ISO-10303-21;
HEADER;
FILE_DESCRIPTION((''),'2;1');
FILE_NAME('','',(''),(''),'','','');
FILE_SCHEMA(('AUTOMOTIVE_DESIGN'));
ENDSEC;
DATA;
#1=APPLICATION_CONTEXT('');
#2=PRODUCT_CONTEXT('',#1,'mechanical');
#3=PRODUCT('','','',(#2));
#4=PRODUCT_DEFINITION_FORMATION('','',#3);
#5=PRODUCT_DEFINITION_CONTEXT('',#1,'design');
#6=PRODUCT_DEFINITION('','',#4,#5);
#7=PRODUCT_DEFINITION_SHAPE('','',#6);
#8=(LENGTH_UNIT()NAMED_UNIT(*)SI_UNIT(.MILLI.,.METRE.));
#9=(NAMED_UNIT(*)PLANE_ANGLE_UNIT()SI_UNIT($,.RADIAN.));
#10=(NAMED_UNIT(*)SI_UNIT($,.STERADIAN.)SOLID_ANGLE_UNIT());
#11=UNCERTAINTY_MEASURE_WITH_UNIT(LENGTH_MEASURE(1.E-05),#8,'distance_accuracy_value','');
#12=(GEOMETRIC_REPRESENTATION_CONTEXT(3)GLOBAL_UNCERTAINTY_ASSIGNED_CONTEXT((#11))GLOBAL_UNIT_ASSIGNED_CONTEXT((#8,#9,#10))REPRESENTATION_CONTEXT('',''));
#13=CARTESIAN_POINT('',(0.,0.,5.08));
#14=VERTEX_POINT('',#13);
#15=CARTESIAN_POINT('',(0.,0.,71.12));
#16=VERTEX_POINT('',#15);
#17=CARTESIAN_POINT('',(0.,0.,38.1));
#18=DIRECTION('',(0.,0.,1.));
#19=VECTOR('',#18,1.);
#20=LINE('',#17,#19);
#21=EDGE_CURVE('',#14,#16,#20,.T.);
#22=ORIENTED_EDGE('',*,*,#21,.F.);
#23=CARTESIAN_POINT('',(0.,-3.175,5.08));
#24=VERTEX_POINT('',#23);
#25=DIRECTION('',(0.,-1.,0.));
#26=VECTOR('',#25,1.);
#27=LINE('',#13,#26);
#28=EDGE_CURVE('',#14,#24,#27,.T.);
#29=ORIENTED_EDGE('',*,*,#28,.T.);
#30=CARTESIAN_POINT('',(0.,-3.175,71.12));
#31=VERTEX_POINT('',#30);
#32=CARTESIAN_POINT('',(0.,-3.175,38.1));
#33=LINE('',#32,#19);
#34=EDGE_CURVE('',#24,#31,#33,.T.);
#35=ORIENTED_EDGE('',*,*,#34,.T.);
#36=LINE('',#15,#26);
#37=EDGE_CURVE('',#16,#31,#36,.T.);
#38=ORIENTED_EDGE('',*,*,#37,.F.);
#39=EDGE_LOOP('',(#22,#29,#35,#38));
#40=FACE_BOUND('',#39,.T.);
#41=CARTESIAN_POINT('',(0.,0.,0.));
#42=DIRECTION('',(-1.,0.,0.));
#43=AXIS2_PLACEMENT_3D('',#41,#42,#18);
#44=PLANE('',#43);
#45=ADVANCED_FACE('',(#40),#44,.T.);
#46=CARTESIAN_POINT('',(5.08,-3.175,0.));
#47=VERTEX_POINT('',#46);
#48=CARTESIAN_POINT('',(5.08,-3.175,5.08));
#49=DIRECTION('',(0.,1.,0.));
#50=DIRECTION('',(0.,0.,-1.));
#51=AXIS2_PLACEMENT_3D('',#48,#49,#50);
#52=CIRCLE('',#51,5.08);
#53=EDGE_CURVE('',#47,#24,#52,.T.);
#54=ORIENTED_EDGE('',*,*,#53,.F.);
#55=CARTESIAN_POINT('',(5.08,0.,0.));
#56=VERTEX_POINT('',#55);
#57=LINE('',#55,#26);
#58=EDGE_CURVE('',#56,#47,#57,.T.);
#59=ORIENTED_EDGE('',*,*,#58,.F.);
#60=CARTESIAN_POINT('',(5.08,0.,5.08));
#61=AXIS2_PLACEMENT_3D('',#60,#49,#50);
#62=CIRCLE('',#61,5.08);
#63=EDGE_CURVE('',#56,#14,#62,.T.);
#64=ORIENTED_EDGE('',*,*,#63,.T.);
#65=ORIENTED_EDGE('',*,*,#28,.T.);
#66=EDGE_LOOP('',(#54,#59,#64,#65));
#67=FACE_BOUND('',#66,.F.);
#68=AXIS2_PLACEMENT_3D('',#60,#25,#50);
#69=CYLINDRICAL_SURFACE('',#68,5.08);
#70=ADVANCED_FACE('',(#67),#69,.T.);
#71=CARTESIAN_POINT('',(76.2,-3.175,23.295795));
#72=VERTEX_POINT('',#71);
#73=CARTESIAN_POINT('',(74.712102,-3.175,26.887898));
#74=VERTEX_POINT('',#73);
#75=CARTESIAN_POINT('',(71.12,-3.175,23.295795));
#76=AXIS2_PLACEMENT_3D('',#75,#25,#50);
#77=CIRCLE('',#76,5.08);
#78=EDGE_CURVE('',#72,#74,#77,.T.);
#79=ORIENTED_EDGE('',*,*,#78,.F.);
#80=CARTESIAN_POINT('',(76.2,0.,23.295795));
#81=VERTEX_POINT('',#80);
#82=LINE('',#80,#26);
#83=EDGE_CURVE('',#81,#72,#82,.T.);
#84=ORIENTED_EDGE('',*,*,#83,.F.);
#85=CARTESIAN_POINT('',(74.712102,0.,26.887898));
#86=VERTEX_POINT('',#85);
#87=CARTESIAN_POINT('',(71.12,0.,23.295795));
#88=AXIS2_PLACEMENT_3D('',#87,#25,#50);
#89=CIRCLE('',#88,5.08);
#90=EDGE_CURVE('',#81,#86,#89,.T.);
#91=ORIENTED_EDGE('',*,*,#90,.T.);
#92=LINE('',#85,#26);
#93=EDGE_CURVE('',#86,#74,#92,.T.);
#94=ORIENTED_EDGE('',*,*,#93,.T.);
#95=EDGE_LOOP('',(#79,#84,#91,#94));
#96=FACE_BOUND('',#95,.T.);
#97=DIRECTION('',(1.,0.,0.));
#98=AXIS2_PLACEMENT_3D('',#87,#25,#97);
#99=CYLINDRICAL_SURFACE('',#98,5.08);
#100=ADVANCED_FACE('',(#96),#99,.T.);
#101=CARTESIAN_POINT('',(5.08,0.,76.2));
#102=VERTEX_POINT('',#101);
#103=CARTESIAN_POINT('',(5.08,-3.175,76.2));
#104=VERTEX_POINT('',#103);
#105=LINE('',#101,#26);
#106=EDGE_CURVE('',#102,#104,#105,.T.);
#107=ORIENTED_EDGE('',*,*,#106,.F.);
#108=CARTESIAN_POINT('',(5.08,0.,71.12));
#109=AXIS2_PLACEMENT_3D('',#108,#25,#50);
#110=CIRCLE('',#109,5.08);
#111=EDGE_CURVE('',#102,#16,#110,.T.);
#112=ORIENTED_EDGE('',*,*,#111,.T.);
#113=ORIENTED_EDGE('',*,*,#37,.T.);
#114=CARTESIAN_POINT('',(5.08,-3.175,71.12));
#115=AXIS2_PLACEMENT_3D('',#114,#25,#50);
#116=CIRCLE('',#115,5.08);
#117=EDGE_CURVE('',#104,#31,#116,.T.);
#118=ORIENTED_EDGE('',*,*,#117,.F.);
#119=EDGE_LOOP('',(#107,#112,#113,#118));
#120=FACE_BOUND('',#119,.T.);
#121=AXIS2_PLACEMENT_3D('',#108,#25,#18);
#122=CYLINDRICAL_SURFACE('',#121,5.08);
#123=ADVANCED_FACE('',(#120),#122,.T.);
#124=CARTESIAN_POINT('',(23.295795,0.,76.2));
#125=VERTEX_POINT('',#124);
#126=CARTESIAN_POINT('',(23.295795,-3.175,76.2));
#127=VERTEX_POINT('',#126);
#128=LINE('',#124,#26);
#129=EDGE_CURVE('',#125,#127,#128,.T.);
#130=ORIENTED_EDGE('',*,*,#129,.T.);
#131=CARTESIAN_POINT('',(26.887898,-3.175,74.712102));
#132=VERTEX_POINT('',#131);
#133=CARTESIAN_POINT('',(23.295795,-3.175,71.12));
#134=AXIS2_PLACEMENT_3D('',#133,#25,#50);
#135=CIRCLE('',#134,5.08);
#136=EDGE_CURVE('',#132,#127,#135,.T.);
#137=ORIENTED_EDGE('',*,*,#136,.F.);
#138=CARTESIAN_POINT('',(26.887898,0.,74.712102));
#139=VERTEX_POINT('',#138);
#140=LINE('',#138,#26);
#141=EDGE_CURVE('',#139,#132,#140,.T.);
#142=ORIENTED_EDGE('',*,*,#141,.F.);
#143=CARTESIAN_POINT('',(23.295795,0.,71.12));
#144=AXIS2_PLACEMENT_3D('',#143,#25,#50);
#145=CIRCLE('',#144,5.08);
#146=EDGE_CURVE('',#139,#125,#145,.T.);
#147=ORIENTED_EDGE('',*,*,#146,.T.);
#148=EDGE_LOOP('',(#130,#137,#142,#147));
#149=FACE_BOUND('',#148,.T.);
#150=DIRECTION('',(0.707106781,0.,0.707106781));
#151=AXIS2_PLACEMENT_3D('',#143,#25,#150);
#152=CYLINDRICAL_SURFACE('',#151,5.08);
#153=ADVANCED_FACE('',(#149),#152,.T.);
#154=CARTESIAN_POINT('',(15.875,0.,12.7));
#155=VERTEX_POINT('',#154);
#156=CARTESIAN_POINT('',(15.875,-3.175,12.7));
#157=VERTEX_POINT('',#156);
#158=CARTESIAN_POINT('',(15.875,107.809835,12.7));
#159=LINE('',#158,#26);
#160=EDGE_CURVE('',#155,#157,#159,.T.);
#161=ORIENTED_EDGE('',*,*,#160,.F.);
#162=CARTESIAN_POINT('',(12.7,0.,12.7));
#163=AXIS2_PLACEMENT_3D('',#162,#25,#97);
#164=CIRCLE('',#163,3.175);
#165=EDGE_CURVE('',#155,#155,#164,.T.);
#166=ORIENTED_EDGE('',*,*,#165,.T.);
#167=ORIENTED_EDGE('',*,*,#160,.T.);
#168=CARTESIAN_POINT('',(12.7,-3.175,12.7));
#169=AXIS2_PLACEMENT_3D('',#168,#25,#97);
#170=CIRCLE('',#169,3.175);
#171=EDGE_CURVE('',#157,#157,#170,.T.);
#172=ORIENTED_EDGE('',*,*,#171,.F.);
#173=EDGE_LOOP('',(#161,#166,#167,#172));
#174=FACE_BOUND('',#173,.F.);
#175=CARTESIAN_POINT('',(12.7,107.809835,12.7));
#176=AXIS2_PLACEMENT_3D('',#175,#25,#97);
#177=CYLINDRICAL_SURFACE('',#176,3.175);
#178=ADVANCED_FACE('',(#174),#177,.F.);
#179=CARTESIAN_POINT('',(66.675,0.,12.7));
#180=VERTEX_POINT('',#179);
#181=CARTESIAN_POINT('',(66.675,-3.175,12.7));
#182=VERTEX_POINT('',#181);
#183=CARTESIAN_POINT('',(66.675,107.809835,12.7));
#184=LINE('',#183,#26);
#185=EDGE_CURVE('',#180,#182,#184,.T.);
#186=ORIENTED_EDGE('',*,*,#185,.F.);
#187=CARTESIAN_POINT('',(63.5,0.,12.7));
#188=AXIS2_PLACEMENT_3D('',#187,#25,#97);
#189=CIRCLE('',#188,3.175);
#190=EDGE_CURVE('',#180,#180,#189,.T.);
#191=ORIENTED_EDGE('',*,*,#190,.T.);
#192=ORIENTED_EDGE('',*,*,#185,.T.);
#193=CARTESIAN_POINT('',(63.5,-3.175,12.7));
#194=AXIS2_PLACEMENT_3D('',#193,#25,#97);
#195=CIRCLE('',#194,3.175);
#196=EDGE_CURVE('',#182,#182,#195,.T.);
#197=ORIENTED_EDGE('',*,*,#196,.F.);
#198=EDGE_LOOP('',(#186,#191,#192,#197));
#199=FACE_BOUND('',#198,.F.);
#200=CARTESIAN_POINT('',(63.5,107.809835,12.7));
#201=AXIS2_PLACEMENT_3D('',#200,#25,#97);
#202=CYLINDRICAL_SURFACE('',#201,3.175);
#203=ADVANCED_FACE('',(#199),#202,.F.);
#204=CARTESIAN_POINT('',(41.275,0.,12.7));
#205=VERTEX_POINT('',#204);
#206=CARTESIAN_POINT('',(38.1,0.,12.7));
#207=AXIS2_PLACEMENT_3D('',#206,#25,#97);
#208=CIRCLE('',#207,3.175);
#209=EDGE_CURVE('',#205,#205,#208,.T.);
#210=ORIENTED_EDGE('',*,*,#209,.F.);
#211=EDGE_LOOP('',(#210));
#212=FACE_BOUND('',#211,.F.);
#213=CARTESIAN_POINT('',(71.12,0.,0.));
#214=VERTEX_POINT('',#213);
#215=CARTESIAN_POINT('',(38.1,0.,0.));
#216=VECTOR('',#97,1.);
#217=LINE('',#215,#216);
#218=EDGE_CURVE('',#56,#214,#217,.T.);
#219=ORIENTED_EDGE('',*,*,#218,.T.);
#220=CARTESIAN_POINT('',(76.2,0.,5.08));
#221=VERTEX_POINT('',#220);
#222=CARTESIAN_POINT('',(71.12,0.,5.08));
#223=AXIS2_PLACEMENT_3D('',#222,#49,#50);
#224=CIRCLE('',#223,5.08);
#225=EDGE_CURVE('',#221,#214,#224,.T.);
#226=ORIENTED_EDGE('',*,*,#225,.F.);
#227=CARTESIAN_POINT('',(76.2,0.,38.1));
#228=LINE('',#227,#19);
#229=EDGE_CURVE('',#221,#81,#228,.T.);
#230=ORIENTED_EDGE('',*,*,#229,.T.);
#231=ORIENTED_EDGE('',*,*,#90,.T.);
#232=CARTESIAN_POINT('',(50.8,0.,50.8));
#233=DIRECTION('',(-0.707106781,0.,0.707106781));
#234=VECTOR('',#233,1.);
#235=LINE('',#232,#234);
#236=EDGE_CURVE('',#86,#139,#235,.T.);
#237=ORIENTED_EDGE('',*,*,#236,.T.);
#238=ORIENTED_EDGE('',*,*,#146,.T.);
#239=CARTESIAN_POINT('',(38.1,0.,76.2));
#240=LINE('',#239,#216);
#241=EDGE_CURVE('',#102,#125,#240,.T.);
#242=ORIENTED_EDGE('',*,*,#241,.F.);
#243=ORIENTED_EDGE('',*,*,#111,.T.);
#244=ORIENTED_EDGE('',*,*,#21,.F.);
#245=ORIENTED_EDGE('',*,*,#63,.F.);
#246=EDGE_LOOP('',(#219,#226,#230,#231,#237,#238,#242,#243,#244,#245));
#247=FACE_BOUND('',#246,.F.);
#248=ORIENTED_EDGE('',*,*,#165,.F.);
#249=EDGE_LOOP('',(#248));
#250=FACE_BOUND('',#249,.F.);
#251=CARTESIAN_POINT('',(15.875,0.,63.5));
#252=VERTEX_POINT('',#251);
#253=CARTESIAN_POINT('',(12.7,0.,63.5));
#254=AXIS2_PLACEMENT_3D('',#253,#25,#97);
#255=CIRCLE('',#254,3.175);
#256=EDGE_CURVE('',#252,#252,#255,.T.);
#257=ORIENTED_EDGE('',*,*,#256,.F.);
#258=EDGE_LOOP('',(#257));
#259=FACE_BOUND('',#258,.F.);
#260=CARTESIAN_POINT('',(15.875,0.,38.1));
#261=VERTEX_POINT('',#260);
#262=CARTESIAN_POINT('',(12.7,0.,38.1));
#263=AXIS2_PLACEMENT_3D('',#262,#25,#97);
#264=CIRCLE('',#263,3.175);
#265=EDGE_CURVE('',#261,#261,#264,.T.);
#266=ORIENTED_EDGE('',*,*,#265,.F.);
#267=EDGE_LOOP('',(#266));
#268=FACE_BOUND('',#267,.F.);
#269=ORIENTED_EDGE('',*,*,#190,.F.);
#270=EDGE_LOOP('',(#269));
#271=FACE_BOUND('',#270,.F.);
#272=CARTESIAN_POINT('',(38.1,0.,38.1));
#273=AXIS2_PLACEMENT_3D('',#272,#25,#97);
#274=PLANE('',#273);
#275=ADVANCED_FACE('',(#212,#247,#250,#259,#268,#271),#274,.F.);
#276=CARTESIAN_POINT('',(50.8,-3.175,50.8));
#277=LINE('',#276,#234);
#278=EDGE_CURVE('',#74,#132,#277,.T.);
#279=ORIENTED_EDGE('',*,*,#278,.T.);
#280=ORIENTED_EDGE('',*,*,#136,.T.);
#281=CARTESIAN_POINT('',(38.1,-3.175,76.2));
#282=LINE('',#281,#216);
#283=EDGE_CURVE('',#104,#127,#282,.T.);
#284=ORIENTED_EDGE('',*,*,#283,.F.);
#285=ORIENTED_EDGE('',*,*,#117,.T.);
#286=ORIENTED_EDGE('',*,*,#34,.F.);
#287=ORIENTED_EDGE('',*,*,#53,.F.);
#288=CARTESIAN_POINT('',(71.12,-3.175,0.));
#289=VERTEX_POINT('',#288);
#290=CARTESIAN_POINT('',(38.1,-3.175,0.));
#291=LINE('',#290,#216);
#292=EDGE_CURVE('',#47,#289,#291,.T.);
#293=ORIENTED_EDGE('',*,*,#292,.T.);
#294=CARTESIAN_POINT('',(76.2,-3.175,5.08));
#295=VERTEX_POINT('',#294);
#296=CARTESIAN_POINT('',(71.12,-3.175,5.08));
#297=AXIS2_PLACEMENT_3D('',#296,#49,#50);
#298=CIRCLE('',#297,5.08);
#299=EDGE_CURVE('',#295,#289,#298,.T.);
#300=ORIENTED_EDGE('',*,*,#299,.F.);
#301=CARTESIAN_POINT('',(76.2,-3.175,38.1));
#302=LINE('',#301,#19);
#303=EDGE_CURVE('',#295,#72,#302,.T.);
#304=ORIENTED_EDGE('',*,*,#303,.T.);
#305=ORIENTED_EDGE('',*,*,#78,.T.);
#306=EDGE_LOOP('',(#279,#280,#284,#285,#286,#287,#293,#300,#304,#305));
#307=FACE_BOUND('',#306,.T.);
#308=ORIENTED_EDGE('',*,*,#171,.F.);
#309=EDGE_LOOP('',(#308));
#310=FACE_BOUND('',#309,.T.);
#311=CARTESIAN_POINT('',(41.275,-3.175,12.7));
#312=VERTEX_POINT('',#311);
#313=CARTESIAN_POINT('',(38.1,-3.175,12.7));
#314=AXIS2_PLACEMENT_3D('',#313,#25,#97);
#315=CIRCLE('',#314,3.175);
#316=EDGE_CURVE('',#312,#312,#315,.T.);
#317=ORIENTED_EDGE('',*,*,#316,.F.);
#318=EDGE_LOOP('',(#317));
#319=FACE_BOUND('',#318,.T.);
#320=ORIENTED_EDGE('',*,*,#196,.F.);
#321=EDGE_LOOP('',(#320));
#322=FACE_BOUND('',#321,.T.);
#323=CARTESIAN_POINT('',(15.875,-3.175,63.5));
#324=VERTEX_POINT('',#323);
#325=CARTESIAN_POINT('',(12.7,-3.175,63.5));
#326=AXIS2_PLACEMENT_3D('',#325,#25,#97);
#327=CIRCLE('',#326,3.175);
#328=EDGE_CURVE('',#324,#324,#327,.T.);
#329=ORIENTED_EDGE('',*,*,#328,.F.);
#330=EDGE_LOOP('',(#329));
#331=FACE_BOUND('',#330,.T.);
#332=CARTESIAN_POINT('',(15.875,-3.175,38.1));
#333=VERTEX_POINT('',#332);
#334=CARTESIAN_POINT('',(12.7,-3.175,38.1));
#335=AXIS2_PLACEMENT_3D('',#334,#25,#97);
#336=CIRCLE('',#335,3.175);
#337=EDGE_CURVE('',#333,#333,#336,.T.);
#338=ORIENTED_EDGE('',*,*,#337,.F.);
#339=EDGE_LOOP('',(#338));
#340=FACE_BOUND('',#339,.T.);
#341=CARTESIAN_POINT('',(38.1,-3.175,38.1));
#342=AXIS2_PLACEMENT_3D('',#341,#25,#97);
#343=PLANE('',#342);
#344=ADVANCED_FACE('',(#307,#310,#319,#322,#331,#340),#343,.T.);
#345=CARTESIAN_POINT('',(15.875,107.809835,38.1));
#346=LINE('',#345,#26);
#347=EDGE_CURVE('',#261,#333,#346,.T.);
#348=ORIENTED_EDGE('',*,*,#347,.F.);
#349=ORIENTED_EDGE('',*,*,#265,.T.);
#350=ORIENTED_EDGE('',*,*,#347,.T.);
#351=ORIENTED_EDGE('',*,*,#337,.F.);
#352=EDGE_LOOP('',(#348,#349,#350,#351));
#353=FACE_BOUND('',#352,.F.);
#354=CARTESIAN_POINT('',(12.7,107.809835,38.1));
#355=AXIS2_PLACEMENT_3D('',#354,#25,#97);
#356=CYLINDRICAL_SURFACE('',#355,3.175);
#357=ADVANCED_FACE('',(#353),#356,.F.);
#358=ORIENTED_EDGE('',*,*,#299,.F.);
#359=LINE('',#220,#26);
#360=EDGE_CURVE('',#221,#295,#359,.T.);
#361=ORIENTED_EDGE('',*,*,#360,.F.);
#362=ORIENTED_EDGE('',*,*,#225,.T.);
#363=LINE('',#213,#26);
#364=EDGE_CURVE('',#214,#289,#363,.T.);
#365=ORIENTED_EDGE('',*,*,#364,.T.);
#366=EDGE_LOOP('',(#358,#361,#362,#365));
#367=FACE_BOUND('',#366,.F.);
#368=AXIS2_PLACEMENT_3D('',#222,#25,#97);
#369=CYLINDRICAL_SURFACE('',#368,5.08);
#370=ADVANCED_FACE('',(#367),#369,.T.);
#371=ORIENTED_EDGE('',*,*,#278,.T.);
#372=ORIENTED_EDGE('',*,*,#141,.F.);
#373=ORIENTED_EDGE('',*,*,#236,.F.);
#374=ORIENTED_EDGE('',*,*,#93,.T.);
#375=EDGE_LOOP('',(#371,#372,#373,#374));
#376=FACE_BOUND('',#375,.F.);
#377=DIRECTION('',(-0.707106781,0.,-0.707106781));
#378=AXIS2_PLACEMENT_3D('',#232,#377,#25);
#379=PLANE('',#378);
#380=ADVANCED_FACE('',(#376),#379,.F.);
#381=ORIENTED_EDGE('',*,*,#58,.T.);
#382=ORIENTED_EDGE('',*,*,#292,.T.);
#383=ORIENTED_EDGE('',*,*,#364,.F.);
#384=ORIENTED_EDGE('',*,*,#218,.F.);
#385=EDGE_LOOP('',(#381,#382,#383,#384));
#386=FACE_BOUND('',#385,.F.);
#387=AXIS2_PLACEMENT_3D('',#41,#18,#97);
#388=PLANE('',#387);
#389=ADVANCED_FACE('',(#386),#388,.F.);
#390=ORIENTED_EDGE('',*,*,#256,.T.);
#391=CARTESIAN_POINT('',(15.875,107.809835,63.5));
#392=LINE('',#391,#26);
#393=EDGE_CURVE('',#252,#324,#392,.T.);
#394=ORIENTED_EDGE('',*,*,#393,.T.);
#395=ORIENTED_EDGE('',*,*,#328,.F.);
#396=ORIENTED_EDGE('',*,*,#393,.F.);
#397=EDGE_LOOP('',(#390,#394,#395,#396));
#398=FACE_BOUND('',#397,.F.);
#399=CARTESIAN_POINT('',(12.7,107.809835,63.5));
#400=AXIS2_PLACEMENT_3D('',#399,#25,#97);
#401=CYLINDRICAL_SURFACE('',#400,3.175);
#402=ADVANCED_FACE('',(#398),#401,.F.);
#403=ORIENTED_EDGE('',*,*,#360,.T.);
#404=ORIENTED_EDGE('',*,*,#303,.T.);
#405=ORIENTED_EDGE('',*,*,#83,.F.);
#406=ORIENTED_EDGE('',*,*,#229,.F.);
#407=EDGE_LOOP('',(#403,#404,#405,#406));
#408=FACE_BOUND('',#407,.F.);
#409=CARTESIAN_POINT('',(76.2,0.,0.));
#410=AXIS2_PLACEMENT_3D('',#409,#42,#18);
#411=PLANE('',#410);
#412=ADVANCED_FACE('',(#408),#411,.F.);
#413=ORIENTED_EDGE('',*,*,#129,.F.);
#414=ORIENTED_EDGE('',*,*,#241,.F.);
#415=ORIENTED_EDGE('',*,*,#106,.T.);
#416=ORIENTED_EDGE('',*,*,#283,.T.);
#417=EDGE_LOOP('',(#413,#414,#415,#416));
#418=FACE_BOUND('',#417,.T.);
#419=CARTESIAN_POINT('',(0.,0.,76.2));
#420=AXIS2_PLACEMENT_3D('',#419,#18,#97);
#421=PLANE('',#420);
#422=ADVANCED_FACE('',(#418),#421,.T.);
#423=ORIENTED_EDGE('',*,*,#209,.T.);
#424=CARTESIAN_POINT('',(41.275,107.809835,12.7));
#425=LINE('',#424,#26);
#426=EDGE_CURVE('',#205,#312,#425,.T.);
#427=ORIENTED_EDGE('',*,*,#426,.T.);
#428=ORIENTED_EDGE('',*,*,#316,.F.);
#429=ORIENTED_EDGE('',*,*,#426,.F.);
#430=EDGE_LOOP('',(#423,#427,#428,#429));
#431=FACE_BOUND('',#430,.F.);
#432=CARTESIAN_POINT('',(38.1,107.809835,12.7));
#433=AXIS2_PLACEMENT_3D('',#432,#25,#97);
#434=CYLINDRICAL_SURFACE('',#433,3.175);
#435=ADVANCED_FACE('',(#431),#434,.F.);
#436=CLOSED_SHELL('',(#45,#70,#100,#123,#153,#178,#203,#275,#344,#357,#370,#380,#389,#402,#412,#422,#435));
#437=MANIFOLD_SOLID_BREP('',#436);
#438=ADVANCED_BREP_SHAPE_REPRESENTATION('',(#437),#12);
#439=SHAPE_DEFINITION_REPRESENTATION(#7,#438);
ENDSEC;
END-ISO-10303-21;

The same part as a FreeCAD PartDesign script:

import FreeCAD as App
import Part
import Sketcher
from FreeCAD import Vector
Q = App.Units.Quantity


def edges_at(feature, points):
    """Names of the edges that pass closest to the given points."""
    edges = feature.Shape.Edges
    near = lambda p: min(range(len(edges)), key=lambda i: edges[i].distToShape(Part.Vertex(*p))[0])
    return sorted({f"Edge{near(p) + 1}" for p in points})


def add_polygon(sketch, points):
    """Adds a closed chain of lines whose ends are joined by coincident constraints."""
    first, n = sketch.GeometryCount, len(points)
    for a, b in zip(points, points[1:] + points[:1]):
        sketch.addGeometry(Part.LineSegment(App.Vector(*a, 0), App.Vector(*b, 0)), False)
    for i in range(n):
        sketch.addConstraint(Sketcher.Constraint("Coincident", first + i, 2, first + (i + 1) % n, 1))

doc = App.newDocument("Part")
body = doc.addObject("PartDesign::Body", "Body")

# Sketch on XZ plane
sketch1 = body.newObject("Sketcher::SketchObject", "Sketch")
sketch1.AttachmentSupport = (doc.getObject("XZ_Plane"), [""])
sketch1.MapMode = "FlatFace"
add_polygon(sketch1, [(0, 76.2), (0, 0), (76.2, 0), (76.2, 76.2)])  # lines 0-3
sketch1.addConstraint([
    Sketcher.Constraint("Vertical", 0),
    Sketcher.Constraint("Horizontal", 1),
    Sketcher.Constraint("Vertical", 2),
    Sketcher.Constraint("Horizontal", 3),
    Sketcher.Constraint("Coincident", 0, 2, -1, 1),
    Sketcher.Constraint("Equal", 3, 0),
    Sketcher.Constraint("DistanceX", 1, 1, 1, 2, Q("3 in")),
])
pad1 = body.newObject("PartDesign::Pad", "Pad")
pad1.Profile = sketch1
pad1.Length = Q("0.125 in")
doc.recompute()

chamfer = body.newObject("PartDesign::Chamfer", "Chamfer")
chamfer.Base = (pad1, edges_at(pad1, [(76.2, -1.587, 76.2)]))
chamfer.Size = Q("2 in")
doc.recompute()

fillet = body.newObject("PartDesign::Fillet", "Fillet")
fillet.Base = (chamfer, edges_at(chamfer, [
    (0, -1.587, 76.2),
    (25.4, -1.587, 76.2),
    (76.2, -1.587, 25.4),
    (76.2, -1.587, 0),
    (0, -1.587, 0),
]))
fillet.Radius = Q("0.2 in")

# Sketch on XZ plane
sketch2 = body.newObject("Sketcher::SketchObject", "Sketch001")
sketch2.AttachmentSupport = (doc.getObject("XZ_Plane"), [""])
sketch2.MapMode = "FlatFace"
sketch2.addGeometry([
    Part.Circle(Vector(12.7, 12.7, 0), Vector(0, 0, 1), 3.175),  # 0
    Part.Circle(Vector(12.7, 38.1, 0), Vector(0, 0, 1), 3.175),  # 1
    Part.Circle(Vector(12.7, 63.5, 0), Vector(0, 0, 1), 3.175),  # 2
    Part.Circle(Vector(38.1, 12.7, 0), Vector(0, 0, 1), 3.175),  # 3
    Part.Circle(Vector(63.5, 12.7, 0), Vector(0, 0, 1), 3.175),  # 4
], False)
sketch2.addConstraint([
    Sketcher.Constraint("Equal", 0, 1),
    Sketcher.Constraint("Equal", 1, 2),
    Sketcher.Constraint("Equal", 2, 3),
    Sketcher.Constraint("Equal", 3, 4),
    Sketcher.Constraint("Horizontal", 0, 3, 3, 3),
    Sketcher.Constraint("Horizontal", 3, 3, 4, 3),
    Sketcher.Constraint("Vertical", 0, 3, 1, 3),
    Sketcher.Constraint("Vertical", 1, 3, 2, 3),
    Sketcher.Constraint("Diameter", 0, Q("0.25 in")),
    Sketcher.Constraint("DistanceY", 0, 3, 1, 3, Q("1 in")),
    Sketcher.Constraint("DistanceY", 1, 3, 2, 3, Q("1 in")),
    Sketcher.Constraint("DistanceX", 0, 3, 3, 3, Q("1 in")),
    Sketcher.Constraint("DistanceX", 3, 3, 4, 3, Q("1 in")),
    Sketcher.Constraint("DistanceX", -1, 1, 0, 3, Q("0.5 in")),
    Sketcher.Constraint("DistanceY", -1, 1, 0, 3, Q("0.5 in")),
])
doc.recompute()
hole = body.newObject("PartDesign::Hole", "Hole")
hole.Profile = sketch2
hole.ThreadType = "None"
hole.Diameter = Q("0.25 in")
hole.DepthType = "ThroughAll"
hole.Reversed = True

doc.recompute()
